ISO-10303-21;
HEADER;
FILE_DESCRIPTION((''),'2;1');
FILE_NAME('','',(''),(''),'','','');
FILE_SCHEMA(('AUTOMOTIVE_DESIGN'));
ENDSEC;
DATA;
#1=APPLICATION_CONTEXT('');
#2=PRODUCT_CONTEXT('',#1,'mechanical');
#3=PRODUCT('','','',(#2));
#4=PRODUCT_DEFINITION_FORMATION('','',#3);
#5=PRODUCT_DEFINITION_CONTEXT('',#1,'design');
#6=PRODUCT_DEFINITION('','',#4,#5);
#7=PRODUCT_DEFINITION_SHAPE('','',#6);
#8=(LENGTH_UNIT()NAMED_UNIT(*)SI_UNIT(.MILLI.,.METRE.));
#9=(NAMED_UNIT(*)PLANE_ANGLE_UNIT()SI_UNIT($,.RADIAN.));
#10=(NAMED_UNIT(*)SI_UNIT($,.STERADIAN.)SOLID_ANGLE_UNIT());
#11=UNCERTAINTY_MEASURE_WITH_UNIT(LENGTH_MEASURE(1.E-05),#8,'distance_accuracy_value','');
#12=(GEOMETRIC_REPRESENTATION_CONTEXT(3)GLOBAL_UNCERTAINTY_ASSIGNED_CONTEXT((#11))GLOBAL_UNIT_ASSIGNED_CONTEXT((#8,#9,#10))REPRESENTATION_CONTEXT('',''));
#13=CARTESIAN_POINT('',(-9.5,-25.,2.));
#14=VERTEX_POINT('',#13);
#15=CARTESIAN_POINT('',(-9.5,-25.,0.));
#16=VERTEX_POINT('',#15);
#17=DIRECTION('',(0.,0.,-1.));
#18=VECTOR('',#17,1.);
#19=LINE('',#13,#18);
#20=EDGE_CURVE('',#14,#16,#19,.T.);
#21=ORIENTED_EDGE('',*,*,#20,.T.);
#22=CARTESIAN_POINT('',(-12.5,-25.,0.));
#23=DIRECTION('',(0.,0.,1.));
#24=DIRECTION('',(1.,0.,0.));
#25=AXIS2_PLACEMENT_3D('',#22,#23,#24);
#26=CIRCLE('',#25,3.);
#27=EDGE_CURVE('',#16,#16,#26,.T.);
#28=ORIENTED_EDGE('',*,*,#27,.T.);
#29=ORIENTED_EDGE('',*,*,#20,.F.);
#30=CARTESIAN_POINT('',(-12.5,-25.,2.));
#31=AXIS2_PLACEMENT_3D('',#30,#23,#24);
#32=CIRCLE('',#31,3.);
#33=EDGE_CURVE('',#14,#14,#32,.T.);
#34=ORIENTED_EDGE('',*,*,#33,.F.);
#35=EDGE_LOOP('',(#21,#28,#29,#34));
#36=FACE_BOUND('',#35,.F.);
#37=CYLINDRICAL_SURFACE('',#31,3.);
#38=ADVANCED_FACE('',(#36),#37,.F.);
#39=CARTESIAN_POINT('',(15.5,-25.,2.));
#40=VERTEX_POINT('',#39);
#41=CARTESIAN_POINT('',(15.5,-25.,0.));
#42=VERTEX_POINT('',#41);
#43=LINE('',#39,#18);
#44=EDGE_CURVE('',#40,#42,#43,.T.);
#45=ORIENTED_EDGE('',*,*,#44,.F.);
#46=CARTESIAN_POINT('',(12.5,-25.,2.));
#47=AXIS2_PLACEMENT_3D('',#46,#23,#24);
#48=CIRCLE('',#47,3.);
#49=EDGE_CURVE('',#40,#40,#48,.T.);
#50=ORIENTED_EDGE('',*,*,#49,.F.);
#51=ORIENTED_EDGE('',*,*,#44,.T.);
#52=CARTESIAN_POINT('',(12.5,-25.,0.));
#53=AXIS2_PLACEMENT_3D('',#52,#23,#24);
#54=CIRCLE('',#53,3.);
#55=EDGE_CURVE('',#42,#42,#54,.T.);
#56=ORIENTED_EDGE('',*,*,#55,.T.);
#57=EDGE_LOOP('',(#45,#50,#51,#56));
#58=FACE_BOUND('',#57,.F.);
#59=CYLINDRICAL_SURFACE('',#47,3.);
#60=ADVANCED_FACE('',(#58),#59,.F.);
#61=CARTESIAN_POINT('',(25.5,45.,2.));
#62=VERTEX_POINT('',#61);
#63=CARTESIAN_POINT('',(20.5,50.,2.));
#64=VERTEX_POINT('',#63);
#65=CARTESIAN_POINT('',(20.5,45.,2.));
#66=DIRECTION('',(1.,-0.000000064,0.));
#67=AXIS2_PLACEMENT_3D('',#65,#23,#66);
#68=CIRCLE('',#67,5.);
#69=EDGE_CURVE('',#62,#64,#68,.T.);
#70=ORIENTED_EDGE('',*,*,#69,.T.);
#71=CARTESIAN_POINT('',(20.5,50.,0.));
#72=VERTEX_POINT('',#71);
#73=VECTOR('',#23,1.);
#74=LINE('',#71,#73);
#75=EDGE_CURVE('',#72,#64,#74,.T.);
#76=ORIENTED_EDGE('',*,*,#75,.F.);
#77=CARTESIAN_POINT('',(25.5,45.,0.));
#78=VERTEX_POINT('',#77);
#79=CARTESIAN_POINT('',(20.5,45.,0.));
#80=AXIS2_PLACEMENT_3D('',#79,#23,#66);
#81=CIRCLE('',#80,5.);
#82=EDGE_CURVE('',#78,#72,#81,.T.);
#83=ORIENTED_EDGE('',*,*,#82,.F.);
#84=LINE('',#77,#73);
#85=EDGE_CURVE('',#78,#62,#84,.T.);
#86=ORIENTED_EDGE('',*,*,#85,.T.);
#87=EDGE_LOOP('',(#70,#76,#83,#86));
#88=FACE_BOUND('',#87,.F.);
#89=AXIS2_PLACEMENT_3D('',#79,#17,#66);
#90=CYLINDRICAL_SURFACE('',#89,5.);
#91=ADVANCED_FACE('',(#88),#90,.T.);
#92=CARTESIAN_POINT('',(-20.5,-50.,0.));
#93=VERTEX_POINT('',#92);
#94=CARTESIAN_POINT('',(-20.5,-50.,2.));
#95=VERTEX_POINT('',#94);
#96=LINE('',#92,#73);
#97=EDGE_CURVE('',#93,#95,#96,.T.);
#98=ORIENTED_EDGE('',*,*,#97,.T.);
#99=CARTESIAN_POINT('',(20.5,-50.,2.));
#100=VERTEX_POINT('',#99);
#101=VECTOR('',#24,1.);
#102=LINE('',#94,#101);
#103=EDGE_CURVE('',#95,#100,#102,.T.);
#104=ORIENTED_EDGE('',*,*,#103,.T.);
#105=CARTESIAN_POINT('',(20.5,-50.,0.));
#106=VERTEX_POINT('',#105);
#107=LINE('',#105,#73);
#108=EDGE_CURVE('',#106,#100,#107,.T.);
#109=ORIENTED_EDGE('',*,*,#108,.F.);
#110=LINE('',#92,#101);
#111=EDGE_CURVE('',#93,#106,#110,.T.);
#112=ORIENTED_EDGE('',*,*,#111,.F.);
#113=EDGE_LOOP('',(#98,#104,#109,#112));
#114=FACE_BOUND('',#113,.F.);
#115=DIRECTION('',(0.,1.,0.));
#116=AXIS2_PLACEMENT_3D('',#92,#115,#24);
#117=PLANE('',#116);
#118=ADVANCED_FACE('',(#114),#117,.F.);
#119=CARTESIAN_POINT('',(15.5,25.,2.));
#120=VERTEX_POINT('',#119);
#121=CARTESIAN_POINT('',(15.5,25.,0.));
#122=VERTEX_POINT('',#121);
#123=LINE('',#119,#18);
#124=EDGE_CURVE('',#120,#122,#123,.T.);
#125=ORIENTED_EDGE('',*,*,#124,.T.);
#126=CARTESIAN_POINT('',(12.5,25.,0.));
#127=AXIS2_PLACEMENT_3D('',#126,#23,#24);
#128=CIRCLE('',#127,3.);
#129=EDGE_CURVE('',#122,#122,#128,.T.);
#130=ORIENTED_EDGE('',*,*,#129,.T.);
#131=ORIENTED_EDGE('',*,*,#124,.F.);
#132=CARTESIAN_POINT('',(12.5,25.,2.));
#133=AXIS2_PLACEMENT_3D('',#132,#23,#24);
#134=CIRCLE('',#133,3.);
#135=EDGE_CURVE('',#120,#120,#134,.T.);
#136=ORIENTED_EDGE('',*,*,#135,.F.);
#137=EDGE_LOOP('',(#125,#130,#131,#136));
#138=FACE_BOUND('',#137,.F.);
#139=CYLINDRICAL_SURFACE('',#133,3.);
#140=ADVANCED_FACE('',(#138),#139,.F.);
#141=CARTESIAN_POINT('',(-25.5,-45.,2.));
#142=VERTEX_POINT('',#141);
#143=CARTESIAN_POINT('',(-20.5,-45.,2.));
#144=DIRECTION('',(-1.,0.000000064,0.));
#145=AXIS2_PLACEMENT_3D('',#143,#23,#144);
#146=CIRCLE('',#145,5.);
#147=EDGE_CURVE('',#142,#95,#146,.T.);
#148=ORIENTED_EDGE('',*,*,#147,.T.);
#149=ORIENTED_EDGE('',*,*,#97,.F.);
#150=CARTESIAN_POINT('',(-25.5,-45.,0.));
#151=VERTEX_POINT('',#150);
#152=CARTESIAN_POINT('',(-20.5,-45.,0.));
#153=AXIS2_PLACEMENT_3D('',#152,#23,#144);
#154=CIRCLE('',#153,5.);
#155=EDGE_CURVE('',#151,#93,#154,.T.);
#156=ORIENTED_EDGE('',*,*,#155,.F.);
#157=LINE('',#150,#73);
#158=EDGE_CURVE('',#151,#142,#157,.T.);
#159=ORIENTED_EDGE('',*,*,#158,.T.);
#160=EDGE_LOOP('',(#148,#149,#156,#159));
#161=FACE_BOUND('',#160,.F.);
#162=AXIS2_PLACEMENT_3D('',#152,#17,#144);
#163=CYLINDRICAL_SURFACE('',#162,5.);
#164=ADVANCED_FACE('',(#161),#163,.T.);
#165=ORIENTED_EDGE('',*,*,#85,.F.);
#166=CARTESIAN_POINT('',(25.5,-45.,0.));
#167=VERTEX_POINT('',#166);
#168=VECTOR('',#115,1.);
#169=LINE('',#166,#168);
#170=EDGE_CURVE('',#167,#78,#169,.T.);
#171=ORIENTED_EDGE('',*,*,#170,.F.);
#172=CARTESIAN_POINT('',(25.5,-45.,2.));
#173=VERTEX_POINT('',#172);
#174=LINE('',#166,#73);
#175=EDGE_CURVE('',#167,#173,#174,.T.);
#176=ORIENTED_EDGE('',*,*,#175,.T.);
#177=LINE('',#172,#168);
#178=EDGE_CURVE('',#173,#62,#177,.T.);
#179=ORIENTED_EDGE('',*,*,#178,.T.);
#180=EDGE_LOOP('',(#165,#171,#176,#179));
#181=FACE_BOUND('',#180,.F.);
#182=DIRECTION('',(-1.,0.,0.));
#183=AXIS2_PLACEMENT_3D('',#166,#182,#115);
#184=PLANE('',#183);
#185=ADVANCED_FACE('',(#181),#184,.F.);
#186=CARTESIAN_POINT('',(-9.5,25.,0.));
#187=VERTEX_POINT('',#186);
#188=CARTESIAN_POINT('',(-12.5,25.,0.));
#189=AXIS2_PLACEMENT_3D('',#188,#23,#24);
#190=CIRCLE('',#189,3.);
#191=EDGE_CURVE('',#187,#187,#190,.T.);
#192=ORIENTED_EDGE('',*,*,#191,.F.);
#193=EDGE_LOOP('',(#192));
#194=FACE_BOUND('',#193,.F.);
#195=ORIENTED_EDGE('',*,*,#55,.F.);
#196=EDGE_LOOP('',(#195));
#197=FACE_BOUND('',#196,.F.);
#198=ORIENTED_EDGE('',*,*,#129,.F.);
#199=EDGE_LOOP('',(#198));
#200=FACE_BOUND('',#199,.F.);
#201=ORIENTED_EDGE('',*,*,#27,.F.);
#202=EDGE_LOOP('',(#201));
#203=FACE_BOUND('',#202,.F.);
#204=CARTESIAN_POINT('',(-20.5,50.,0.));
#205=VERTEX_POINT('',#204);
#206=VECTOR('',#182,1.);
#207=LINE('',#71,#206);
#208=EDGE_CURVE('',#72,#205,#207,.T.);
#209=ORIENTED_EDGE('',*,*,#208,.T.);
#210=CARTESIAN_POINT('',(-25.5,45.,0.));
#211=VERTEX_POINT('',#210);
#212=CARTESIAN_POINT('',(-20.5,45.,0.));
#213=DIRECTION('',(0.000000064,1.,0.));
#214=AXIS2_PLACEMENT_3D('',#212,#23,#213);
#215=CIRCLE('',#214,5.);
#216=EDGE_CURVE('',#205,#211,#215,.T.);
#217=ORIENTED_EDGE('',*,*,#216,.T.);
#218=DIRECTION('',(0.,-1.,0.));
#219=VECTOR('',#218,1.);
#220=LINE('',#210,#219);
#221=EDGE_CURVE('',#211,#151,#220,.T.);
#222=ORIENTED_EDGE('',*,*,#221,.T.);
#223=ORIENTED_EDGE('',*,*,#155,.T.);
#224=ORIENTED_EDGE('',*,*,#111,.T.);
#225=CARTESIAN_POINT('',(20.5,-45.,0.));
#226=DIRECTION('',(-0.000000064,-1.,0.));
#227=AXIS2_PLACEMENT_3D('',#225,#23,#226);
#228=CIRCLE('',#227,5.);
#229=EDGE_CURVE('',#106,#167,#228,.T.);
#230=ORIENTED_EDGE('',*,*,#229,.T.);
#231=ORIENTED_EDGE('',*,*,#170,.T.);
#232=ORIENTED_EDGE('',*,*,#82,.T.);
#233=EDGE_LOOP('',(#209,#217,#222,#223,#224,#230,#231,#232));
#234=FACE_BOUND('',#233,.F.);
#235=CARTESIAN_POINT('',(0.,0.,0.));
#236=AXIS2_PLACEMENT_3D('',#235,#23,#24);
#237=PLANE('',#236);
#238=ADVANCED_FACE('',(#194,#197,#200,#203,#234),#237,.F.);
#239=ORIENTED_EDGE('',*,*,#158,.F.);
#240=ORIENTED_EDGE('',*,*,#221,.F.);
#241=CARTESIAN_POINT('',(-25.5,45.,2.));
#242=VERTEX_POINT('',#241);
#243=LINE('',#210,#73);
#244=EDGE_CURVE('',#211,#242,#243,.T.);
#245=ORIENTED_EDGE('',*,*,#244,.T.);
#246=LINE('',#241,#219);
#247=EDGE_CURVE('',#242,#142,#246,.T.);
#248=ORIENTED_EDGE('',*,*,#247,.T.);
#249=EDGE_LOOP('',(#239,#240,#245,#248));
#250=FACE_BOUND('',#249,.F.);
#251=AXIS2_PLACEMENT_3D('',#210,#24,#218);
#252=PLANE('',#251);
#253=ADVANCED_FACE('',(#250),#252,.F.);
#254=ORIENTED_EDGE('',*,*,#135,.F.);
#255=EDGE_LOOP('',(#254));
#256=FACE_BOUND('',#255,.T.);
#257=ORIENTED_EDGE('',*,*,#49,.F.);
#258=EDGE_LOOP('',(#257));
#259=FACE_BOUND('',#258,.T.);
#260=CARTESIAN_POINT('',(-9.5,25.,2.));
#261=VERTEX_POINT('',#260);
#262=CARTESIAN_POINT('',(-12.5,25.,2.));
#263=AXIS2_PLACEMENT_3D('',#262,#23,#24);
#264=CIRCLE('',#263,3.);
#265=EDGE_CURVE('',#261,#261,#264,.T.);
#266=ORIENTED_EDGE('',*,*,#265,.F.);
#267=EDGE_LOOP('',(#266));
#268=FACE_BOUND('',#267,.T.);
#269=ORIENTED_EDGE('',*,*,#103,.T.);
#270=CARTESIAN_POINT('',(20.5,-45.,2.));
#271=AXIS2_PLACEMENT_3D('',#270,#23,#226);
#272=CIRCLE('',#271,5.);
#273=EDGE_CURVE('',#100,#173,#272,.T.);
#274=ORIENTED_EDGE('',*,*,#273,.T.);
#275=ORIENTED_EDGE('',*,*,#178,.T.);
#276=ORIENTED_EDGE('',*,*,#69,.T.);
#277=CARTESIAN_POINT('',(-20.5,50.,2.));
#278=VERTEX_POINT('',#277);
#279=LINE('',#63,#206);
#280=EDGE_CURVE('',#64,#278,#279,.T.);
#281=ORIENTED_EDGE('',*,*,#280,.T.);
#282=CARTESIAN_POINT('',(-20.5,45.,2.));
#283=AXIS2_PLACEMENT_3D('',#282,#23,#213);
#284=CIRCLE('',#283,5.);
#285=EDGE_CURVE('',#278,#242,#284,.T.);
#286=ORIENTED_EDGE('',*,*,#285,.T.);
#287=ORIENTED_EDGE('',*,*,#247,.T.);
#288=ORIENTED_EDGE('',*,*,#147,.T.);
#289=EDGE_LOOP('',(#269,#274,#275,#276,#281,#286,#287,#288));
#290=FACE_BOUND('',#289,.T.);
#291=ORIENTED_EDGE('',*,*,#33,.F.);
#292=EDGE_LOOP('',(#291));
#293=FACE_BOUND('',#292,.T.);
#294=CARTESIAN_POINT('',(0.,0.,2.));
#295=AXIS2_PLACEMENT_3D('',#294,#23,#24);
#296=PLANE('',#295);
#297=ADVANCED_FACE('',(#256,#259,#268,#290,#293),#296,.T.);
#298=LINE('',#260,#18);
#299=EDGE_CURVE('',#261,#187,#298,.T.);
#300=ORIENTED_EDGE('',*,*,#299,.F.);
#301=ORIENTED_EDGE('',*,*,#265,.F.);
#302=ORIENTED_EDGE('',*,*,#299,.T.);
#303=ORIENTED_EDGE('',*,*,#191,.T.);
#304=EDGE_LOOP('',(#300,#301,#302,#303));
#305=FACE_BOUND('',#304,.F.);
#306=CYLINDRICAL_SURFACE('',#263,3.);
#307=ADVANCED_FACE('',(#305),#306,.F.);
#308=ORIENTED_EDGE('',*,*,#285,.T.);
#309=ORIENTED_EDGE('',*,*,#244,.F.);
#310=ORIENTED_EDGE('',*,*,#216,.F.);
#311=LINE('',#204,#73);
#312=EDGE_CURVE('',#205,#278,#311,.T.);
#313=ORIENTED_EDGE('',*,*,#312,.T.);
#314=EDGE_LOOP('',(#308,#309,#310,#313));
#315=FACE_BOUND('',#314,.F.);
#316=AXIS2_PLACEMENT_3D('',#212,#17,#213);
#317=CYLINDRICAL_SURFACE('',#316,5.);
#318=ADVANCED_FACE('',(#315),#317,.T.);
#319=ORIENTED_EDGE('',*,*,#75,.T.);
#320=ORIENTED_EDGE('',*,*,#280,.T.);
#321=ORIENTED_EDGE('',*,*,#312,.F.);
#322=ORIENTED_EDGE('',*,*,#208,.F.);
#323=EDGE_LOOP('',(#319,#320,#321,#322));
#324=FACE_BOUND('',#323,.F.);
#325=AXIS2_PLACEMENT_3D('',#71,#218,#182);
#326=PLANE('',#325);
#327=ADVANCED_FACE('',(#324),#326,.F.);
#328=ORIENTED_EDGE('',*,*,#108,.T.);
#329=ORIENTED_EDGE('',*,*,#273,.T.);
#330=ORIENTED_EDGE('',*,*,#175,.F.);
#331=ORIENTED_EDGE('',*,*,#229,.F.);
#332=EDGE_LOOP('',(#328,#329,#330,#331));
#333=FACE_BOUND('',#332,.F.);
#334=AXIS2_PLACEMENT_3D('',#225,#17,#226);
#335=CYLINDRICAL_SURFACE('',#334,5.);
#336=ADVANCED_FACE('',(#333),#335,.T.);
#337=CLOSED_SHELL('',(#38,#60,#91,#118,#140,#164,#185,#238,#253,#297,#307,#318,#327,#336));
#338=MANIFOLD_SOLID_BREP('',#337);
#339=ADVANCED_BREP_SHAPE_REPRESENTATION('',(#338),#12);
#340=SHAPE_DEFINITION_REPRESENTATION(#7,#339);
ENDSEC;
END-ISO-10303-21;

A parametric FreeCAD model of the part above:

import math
import FreeCAD as App
import Part
import Sketcher
from FreeCAD import Vector

doc = App.newDocument("Part")
body = doc.addObject("PartDesign::Body", "Body")

# Sketch on XY plane
sketch1 = doc.addObject("Sketcher::SketchObject", "Sketch")
body.addObject(sketch1)
sketch1.AttachmentSupport = (doc.XY_Plane, [""])
sketch1.MapMode = "FlatFace"
sketch1.addGeometry([
    Part.LineSegment(Vector(-20.5, -50, 0), Vector(20.5, -50, 0)),  # 0
    Part.ArcOfCircle(Part.Circle(Vector(20.5, -45, 0), Vector(0, 0, 1), 5), math.radians(-90), math.radians(0)),  # 1
    Part.LineSegment(Vector(25.5, -45, 0), Vector(25.5, 45, 0)),  # 2
    Part.ArcOfCircle(Part.Circle(Vector(20.5, 45, 0), Vector(0, 0, 1), 5), math.radians(0), math.radians(90)),  # 3
    Part.LineSegment(Vector(20.5, 50, 0), Vector(-20.5, 50, 0)),  # 4
    Part.ArcOfCircle(Part.Circle(Vector(-20.5, 45, 0), Vector(0, 0, 1), 5), math.radians(90), math.radians(180)),  # 5
    Part.LineSegment(Vector(-25.5, 45, 0), Vector(-25.5, -45, 0)),  # 6
    Part.ArcOfCircle(Part.Circle(Vector(-20.5, -45, 0), Vector(0, 0, 1), 5), math.radians(180), math.radians(270)),  # 7
], False)
sketch1.addConstraint([
    Sketcher.Constraint("Tangent", 0, 2, 1, 1),
    Sketcher.Constraint("Tangent", 1, 2, 2, 1),
    Sketcher.Constraint("Tangent", 2, 2, 3, 1),
    Sketcher.Constraint("Tangent", 3, 2, 4, 1),
    Sketcher.Constraint("Tangent", 4, 2, 5, 1),
    Sketcher.Constraint("Tangent", 5, 2, 6, 1),
    Sketcher.Constraint("Tangent", 6, 2, 7, 1),
    Sketcher.Constraint("Tangent", 7, 2, 0, 1),
    Sketcher.Constraint("Horizontal", 0),
    Sketcher.Constraint("Vertical", 2),
    Sketcher.Constraint("Horizontal", 4),
    Sketcher.Constraint("Vertical", 6),
    Sketcher.Constraint("Equal", 1, 3),
    Sketcher.Constraint("Equal", 3, 5),
    Sketcher.Constraint("Equal", 5, 7),
    Sketcher.Constraint("Symmetric", 1, 3, 5, 3, -1, 1),
    Sketcher.Constraint("Radius", 1, 5.0),
    Sketcher.Constraint("DistanceX", 0, 1, 0, 2, 41.0),
    Sketcher.Constraint("DistanceY", 2, 1, 2, 2, 90.0),
])
pad1 = doc.addObject("PartDesign::Pad", "Pad")
body.addObject(pad1)
pad1.Profile = sketch1
pad1.Length = 2

# Sketch on XY plane
sketch2 = doc.addObject("Sketcher::SketchObject", "Sketch001")
body.addObject(sketch2)
sketch2.AttachmentSupport = (doc.XY_Plane, [""])
sketch2.MapMode = "FlatFace"
sketch2.AttachmentOffset = App.Placement(Vector(0, 0, 2), App.Rotation())
sketch2.addGeometry([
    Part.Circle(Vector(-12.5, 25, 0), Vector(0, 0, 1), 3),
    Part.Circle(Vector(12.5, 25, 0), Vector(0, 0, 1), 3),
    Part.Circle(Vector(-12.5, -25, 0), Vector(0, 0, 1), 3),
    Part.Circle(Vector(12.5, -25, 0), Vector(0, 0, 1), 3),
], False)
sketch2.addConstraint([
    Sketcher.Constraint("Equal", 0, 1),
    Sketcher.Constraint("Equal", 1, 2),
    Sketcher.Constraint("Equal", 2, 3),
    Sketcher.Constraint("Symmetric", 1, 3, 2, 3, -1, 1),
    Sketcher.Constraint("Symmetric", 0, 3, 3, 3, -1, 1),
    Sketcher.Constraint("Symmetric", 0, 3, 1, 3, -2),
    Sketcher.Constraint("Diameter", 0, 6.0),
    Sketcher.Constraint("DistanceY", -1, 1, 0, 3, 25.0),
    Sketcher.Constraint("DistanceX", 0, 3, 1, 3, 25.0),
])
pocket1 = doc.addObject("PartDesign::Pocket", "Pocket")
body.addObject(pocket1)
pocket1.Profile = sketch2
pocket1.Length = 25

doc.recompute()
